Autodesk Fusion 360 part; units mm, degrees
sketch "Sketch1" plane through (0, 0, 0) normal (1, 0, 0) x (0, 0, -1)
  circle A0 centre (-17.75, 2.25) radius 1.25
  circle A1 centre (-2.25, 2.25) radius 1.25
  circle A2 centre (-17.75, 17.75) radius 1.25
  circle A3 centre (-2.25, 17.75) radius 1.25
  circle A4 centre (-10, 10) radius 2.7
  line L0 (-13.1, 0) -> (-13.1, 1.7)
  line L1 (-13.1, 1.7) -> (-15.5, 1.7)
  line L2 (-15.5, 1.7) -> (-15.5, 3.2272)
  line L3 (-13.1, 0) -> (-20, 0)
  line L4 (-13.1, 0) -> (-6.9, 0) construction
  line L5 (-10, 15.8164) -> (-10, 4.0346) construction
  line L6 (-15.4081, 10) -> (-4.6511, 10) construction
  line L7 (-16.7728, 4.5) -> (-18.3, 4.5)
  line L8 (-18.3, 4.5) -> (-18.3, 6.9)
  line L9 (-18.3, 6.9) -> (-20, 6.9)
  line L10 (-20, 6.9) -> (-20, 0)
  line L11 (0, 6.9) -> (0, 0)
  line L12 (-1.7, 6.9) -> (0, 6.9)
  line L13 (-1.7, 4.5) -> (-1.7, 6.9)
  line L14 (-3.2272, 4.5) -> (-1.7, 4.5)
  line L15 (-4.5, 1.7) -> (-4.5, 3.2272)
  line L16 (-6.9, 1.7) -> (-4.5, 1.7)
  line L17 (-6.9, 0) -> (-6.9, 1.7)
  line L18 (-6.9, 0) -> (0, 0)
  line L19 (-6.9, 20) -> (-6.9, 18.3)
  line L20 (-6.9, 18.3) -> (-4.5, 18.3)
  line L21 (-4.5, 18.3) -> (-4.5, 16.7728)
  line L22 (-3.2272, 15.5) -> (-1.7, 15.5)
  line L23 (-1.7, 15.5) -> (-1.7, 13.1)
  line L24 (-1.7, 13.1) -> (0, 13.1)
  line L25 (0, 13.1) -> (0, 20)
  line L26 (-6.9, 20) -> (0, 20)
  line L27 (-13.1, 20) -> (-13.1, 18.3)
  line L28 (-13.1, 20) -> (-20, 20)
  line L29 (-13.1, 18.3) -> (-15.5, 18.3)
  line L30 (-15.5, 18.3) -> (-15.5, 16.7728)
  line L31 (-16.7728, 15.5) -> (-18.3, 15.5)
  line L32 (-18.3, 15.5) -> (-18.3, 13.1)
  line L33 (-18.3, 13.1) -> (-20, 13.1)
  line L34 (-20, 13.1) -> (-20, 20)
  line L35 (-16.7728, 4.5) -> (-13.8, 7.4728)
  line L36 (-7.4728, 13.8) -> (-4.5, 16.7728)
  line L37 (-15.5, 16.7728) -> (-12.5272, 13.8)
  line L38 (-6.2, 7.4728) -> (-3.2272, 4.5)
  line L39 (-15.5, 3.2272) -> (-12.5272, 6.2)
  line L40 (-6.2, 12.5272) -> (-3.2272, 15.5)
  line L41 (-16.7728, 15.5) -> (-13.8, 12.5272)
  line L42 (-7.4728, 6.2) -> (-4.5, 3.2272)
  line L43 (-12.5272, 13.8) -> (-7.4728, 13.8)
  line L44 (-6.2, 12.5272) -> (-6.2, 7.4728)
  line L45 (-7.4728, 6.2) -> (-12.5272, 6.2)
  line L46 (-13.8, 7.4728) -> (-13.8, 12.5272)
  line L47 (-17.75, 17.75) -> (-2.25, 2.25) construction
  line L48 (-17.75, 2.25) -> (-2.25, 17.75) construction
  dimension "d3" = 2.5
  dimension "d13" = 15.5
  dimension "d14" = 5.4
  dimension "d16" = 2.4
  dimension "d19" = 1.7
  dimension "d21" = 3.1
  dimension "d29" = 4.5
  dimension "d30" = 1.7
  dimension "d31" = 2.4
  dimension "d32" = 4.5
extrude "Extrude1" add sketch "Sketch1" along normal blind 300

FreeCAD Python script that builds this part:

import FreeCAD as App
import Part
import Sketcher
from FreeCAD import Vector
Q = App.Units.Quantity


def add_polygon(sketch, points):
    """Adds a closed chain of lines whose ends are joined by coincident constraints."""
    first, n = sketch.GeometryCount, len(points)
    for a, b in zip(points, points[1:] + points[:1]):
        sketch.addGeometry(Part.LineSegment(App.Vector(*a, 0), App.Vector(*b, 0)), False)
    for i in range(n):
        sketch.addConstraint(Sketcher.Constraint("Coincident", first + i, 2, first + (i + 1) % n, 1))

doc = App.newDocument("Part")
body = doc.addObject("PartDesign::Body", "Body")

# Sketch on YZ plane
sketch1 = doc.addObject("Sketcher::SketchObject", "Sketch")
body.addObject(sketch1)
sketch1.AttachmentSupport = (doc.YZ_Plane, [""])
sketch1.MapMode = "FlatFace"
add_polygon(sketch1, [(0, 20), (0, 13.1), (1.7, 13.1), (1.7, 15.5), (3.2, 15.5), (6.2, 12.5), (6.2, 7.5), (3.2, 4.5), (1.7, 4.5), (1.7, 6.9), (0, 6.9), (0, 0), (6.9, 0), (6.9, 1.7), (4.5, 1.7), (4.5, 3.2), (7.5, 6.2), (12.5, 6.2), (15.5, 3.2), (15.5, 1.7), (13.1, 1.7), (13.1, 0), (20, 0), (20, 6.9), (18.3, 6.9), (18.3, 4.5), (16.8, 4.5), (13.8, 7.5), (13.8, 12.5), (16.8, 15.5), (18.3, 15.5), (18.3, 13.1), (20, 13.1), (20, 20), (13.1, 20), (13.1, 18.3), (15.5, 18.3), (15.5, 16.8), (12.5, 13.8), (7.5, 13.8), (4.5, 16.8), (4.5, 18.3), (6.9, 18.3), (6.9, 20)])  # lines 0-43
sketch1.addGeometry(Part.Circle(Vector(2.2, 17.8, 0), Vector(0, 0, 1), 1.2), False)  # 44
sketch1.addGeometry(Part.Circle(Vector(2.2, 2.2, 0), Vector(0, 0, 1), 1.2), False)  # 45
sketch1.addGeometry(Part.Circle(Vector(17.8, 17.8, 0), Vector(0, 0, 1), 1.2), False)  # 46
sketch1.addGeometry(Part.Circle(Vector(10, 10, 0), Vector(0, 0, 1), 2.7), False)  # 47
sketch1.addGeometry(Part.Circle(Vector(17.8, 2.2, 0), Vector(0, 0, 1), 1.2), False)  # 48
sketch1.addConstraint(Sketcher.Constraint("Vertical", 0))
sketch1.addConstraint(Sketcher.Constraint("Horizontal", 1))
sketch1.addConstraint(Sketcher.Constraint("Vertical", 2))
sketch1.addConstraint(Sketcher.Constraint("Horizontal", 3))
sketch1.addConstraint(Sketcher.Constraint("Vertical", 5))
sketch1.addConstraint(Sketcher.Constraint("Horizontal", 7))
sketch1.addConstraint(Sketcher.Constraint("Vertical", 8))
sketch1.addConstraint(Sketcher.Constraint("Horizontal", 9))
sketch1.addConstraint(Sketcher.Constraint("Vertical", 10))
sketch1.addConstraint(Sketcher.Constraint("Horizontal", 11))
sketch1.addConstraint(Sketcher.Constraint("Vertical", 12))
sketch1.addConstraint(Sketcher.Constraint("Horizontal", 13))
sketch1.addConstraint(Sketcher.Constraint("Vertical", 14))
sketch1.addConstraint(Sketcher.Constraint("Horizontal", 16))
sketch1.addConstraint(Sketcher.Constraint("Vertical", 18))
sketch1.addConstraint(Sketcher.Constraint("Horizontal", 19))
sketch1.addConstraint(Sketcher.Constraint("Vertical", 20))
sketch1.addConstraint(Sketcher.Constraint("Horizontal", 21))
sketch1.addConstraint(Sketcher.Constraint("Vertical", 22))
sketch1.addConstraint(Sketcher.Constraint("Horizontal", 23))
sketch1.addConstraint(Sketcher.Constraint("Vertical", 24))
sketch1.addConstraint(Sketcher.Constraint("Horizontal", 25))
sketch1.addConstraint(Sketcher.Constraint("Vertical", 27))
sketch1.addConstraint(Sketcher.Constraint("Horizontal", 29))
sketch1.addConstraint(Sketcher.Constraint("Vertical", 30))
sketch1.addConstraint(Sketcher.Constraint("Horizontal", 31))
sketch1.addConstraint(Sketcher.Constraint("Vertical", 32))
sketch1.addConstraint(Sketcher.Constraint("Horizontal", 33))
sketch1.addConstraint(Sketcher.Constraint("Vertical", 34))
sketch1.addConstraint(Sketcher.Constraint("Horizontal", 35))
sketch1.addConstraint(Sketcher.Constraint("Vertical", 36))
sketch1.addConstraint(Sketcher.Constraint("Horizontal", 38))
sketch1.addConstraint(Sketcher.Constraint("Vertical", 40))
sketch1.addConstraint(Sketcher.Constraint("Horizontal", 41))
sketch1.addConstraint(Sketcher.Constraint("Vertical", 42))
sketch1.addConstraint(Sketcher.Constraint("Horizontal", 43))
sketch1.addConstraint(Sketcher.Constraint("Coincident", 10, 2, -1, 1))
sketch1.addConstraint(Sketcher.Constraint("Equal", 44, 45))
sketch1.addConstraint(Sketcher.Constraint("Equal", 45, 46))
sketch1.addConstraint(Sketcher.Constraint("Equal", 46, 48))
sketch1.addConstraint(Sketcher.Constraint("PointOnObject", 0, 2, -2))
sketch1.addConstraint(Sketcher.Constraint("PointOnObject", 20, 2, -1))
sketch1.addConstraint(Sketcher.Constraint("Perpendicular", 4, 6))
sketch1.addConstraint(Sketcher.Constraint("Parallel", 6, 15))
sketch1.addConstraint(Sketcher.Constraint("Perpendicular", 15, 17))
sketch1.addConstraint(Sketcher.Constraint("Parallel", 17, 26))
sketch1.addConstraint(Sketcher.Constraint("Perpendicular", 26, 28))
sketch1.addConstraint(Sketcher.Constraint("Parallel", 28, 37))
sketch1.addConstraint(Sketcher.Constraint("Perpendicular", 37, 39))
sketch1.addConstraint(Sketcher.Constraint("Horizontal", 44, 3, 46, 3))
sketch1.addConstraint(Sketcher.Constraint("Horizontal", 45, 3, 48, 3))
sketch1.addConstraint(Sketcher.Constraint("Horizontal", 14, 2, 17, 2))
sketch1.addConstraint(Sketcher.Constraint("Horizontal", 13, 2, 18, 2))
sketch1.addConstraint(Sketcher.Constraint("Horizontal", 9, 2, 22, 2))
sketch1.addConstraint(Sketcher.Constraint("Horizontal", 7, 2, 24, 2))
sketch1.addConstraint(Sketcher.Constraint("Horizontal", 5, 2, 26, 2))
sketch1.addConstraint(Sketcher.Constraint("Horizontal", 4, 2, 27, 2))
sketch1.addConstraint(Sketcher.Constraint("Horizontal", 3, 2, 28, 2))
sketch1.addConstraint(Sketcher.Constraint("Horizontal", 1, 2, 30, 2))
sketch1.addConstraint(Sketcher.Constraint("Horizontal", 36, 2, 39, 2))
sketch1.addConstraint(Sketcher.Constraint("Horizontal", 35, 2, 40, 2))
sketch1.addConstraint(Sketcher.Constraint("Horizontal", 33, 2, 42, 2))
sketch1.addConstraint(Sketcher.Constraint("Vertical", 44, 3, 45, 3))
sketch1.addConstraint(Sketcher.Constraint("Vertical", 46, 3, 48, 3))
sketch1.addConstraint(Sketcher.Constraint("Vertical", 3, 2, 6, 2))
sketch1.addConstraint(Sketcher.Constraint("Vertical", 2, 2, 7, 2))
sketch1.addConstraint(Sketcher.Constraint("Vertical", 25, 2, 28, 2))
sketch1.addConstraint(Sketcher.Constraint("Vertical", 24, 2, 29, 2))
sketch1.addConstraint(Sketcher.Constraint("Vertical", 22, 2, 31, 2))
sketch1.addConstraint(Sketcher.Constraint("Vertical", 20, 2, 33, 2))
sketch1.addConstraint(Sketcher.Constraint("Vertical", 18, 2, 35, 2))
sketch1.addConstraint(Sketcher.Constraint("Vertical", 16, 2, 37, 2))
sketch1.addConstraint(Sketcher.Constraint("Vertical", 15, 2, 38, 2))
sketch1.addConstraint(Sketcher.Constraint("Vertical", 12, 2, 41, 2))
sketch1.addConstraint(Sketcher.Constraint("Equal", 13, 19))
sketch1.addConstraint(Sketcher.Constraint("Equal", 11, 21))
sketch1.addConstraint(Sketcher.Constraint("Equal", 9, 23))
sketch1.addConstraint(Sketcher.Constraint("Equal", 7, 25))
sketch1.addConstraint(Sketcher.Constraint("Equal", 43, 0))
sketch1.addConstraint(Sketcher.Constraint("Equal", 41, 2))
sketch1.addConstraint(Sketcher.Constraint("Equal", 38, 5))
sketch1.addConstraint(Sketcher.Constraint("Equal", 2, 8))
sketch1.addConstraint(Sketcher.Constraint("Equal", 0, 10))
sketch1.addConstraint(Sketcher.Constraint("Equal", 31, 12))
sketch1.addConstraint(Sketcher.Constraint("Equal", 29, 14))
sketch1.addConstraint(Sketcher.Constraint("Equal", 20, 34))
sketch1.addConstraint(Sketcher.Constraint("Equal", 18, 36))
sketch1.addConstraint(Sketcher.Constraint("Equal", 6, 15))
sketch1.addConstraint(Sketcher.Constraint("Diameter", 44, Q("2.5 mm")))
sketch1.addConstraint(Sketcher.Constraint("Diameter", 47, Q("5.4 mm")))
sketch1.addConstraint(Sketcher.Constraint("DistanceX", 1, 1, 1, 2, Q("1.7 mm")))
sketch1.addConstraint(Sketcher.Constraint("DistanceX", 13, 2, 13, 1, Q("2.4 mm")))
sketch1.addConstraint(Sketcher.Constraint("DistanceY", -1, 1, 2, 2, Q("15.5 mm")))
sketch1.addConstraint(Sketcher.Constraint("DistanceY", -1, 1, 6, 2, Q("4.5 mm")))
sketch1.addConstraint(Sketcher.Constraint("DistanceY", 45, 3, 44, 3, Q("15.5 mm")))
sketch1.addConstraint(Sketcher.Constraint("DistanceX", 44, 3, 46, 3, Q("15.5 mm")))
sketch1.addConstraint(Sketcher.Constraint("DistanceY", 47, 3, 0, 2, Q("3.1 mm")))
sketch1.addConstraint(Sketcher.Constraint("DistanceX", 1, 2, 4, 2, Q("4.5 mm")))
sketch1.addConstraint(Sketcher.Constraint("DistanceX", -1, 1, 47, 3, Q("10 mm")))
sketch1.addConstraint(Sketcher.Constraint("DistanceX", -1, 1, 44, 3, Q("2.25 mm")))
sketch1.addConstraint(Sketcher.Constraint("DistanceY", -1, 1, 44, 3, Q("17.75 mm")))
sketch1.addConstraint(Sketcher.Constraint("DistanceX", 3, 1, 3, 2, Q("1.5272 mm")))
pad1 = doc.addObject("PartDesign::Pad", "Pad")
body.addObject(pad1)
pad1.Profile = sketch1
pad1.Length = 300

doc.recompute()
